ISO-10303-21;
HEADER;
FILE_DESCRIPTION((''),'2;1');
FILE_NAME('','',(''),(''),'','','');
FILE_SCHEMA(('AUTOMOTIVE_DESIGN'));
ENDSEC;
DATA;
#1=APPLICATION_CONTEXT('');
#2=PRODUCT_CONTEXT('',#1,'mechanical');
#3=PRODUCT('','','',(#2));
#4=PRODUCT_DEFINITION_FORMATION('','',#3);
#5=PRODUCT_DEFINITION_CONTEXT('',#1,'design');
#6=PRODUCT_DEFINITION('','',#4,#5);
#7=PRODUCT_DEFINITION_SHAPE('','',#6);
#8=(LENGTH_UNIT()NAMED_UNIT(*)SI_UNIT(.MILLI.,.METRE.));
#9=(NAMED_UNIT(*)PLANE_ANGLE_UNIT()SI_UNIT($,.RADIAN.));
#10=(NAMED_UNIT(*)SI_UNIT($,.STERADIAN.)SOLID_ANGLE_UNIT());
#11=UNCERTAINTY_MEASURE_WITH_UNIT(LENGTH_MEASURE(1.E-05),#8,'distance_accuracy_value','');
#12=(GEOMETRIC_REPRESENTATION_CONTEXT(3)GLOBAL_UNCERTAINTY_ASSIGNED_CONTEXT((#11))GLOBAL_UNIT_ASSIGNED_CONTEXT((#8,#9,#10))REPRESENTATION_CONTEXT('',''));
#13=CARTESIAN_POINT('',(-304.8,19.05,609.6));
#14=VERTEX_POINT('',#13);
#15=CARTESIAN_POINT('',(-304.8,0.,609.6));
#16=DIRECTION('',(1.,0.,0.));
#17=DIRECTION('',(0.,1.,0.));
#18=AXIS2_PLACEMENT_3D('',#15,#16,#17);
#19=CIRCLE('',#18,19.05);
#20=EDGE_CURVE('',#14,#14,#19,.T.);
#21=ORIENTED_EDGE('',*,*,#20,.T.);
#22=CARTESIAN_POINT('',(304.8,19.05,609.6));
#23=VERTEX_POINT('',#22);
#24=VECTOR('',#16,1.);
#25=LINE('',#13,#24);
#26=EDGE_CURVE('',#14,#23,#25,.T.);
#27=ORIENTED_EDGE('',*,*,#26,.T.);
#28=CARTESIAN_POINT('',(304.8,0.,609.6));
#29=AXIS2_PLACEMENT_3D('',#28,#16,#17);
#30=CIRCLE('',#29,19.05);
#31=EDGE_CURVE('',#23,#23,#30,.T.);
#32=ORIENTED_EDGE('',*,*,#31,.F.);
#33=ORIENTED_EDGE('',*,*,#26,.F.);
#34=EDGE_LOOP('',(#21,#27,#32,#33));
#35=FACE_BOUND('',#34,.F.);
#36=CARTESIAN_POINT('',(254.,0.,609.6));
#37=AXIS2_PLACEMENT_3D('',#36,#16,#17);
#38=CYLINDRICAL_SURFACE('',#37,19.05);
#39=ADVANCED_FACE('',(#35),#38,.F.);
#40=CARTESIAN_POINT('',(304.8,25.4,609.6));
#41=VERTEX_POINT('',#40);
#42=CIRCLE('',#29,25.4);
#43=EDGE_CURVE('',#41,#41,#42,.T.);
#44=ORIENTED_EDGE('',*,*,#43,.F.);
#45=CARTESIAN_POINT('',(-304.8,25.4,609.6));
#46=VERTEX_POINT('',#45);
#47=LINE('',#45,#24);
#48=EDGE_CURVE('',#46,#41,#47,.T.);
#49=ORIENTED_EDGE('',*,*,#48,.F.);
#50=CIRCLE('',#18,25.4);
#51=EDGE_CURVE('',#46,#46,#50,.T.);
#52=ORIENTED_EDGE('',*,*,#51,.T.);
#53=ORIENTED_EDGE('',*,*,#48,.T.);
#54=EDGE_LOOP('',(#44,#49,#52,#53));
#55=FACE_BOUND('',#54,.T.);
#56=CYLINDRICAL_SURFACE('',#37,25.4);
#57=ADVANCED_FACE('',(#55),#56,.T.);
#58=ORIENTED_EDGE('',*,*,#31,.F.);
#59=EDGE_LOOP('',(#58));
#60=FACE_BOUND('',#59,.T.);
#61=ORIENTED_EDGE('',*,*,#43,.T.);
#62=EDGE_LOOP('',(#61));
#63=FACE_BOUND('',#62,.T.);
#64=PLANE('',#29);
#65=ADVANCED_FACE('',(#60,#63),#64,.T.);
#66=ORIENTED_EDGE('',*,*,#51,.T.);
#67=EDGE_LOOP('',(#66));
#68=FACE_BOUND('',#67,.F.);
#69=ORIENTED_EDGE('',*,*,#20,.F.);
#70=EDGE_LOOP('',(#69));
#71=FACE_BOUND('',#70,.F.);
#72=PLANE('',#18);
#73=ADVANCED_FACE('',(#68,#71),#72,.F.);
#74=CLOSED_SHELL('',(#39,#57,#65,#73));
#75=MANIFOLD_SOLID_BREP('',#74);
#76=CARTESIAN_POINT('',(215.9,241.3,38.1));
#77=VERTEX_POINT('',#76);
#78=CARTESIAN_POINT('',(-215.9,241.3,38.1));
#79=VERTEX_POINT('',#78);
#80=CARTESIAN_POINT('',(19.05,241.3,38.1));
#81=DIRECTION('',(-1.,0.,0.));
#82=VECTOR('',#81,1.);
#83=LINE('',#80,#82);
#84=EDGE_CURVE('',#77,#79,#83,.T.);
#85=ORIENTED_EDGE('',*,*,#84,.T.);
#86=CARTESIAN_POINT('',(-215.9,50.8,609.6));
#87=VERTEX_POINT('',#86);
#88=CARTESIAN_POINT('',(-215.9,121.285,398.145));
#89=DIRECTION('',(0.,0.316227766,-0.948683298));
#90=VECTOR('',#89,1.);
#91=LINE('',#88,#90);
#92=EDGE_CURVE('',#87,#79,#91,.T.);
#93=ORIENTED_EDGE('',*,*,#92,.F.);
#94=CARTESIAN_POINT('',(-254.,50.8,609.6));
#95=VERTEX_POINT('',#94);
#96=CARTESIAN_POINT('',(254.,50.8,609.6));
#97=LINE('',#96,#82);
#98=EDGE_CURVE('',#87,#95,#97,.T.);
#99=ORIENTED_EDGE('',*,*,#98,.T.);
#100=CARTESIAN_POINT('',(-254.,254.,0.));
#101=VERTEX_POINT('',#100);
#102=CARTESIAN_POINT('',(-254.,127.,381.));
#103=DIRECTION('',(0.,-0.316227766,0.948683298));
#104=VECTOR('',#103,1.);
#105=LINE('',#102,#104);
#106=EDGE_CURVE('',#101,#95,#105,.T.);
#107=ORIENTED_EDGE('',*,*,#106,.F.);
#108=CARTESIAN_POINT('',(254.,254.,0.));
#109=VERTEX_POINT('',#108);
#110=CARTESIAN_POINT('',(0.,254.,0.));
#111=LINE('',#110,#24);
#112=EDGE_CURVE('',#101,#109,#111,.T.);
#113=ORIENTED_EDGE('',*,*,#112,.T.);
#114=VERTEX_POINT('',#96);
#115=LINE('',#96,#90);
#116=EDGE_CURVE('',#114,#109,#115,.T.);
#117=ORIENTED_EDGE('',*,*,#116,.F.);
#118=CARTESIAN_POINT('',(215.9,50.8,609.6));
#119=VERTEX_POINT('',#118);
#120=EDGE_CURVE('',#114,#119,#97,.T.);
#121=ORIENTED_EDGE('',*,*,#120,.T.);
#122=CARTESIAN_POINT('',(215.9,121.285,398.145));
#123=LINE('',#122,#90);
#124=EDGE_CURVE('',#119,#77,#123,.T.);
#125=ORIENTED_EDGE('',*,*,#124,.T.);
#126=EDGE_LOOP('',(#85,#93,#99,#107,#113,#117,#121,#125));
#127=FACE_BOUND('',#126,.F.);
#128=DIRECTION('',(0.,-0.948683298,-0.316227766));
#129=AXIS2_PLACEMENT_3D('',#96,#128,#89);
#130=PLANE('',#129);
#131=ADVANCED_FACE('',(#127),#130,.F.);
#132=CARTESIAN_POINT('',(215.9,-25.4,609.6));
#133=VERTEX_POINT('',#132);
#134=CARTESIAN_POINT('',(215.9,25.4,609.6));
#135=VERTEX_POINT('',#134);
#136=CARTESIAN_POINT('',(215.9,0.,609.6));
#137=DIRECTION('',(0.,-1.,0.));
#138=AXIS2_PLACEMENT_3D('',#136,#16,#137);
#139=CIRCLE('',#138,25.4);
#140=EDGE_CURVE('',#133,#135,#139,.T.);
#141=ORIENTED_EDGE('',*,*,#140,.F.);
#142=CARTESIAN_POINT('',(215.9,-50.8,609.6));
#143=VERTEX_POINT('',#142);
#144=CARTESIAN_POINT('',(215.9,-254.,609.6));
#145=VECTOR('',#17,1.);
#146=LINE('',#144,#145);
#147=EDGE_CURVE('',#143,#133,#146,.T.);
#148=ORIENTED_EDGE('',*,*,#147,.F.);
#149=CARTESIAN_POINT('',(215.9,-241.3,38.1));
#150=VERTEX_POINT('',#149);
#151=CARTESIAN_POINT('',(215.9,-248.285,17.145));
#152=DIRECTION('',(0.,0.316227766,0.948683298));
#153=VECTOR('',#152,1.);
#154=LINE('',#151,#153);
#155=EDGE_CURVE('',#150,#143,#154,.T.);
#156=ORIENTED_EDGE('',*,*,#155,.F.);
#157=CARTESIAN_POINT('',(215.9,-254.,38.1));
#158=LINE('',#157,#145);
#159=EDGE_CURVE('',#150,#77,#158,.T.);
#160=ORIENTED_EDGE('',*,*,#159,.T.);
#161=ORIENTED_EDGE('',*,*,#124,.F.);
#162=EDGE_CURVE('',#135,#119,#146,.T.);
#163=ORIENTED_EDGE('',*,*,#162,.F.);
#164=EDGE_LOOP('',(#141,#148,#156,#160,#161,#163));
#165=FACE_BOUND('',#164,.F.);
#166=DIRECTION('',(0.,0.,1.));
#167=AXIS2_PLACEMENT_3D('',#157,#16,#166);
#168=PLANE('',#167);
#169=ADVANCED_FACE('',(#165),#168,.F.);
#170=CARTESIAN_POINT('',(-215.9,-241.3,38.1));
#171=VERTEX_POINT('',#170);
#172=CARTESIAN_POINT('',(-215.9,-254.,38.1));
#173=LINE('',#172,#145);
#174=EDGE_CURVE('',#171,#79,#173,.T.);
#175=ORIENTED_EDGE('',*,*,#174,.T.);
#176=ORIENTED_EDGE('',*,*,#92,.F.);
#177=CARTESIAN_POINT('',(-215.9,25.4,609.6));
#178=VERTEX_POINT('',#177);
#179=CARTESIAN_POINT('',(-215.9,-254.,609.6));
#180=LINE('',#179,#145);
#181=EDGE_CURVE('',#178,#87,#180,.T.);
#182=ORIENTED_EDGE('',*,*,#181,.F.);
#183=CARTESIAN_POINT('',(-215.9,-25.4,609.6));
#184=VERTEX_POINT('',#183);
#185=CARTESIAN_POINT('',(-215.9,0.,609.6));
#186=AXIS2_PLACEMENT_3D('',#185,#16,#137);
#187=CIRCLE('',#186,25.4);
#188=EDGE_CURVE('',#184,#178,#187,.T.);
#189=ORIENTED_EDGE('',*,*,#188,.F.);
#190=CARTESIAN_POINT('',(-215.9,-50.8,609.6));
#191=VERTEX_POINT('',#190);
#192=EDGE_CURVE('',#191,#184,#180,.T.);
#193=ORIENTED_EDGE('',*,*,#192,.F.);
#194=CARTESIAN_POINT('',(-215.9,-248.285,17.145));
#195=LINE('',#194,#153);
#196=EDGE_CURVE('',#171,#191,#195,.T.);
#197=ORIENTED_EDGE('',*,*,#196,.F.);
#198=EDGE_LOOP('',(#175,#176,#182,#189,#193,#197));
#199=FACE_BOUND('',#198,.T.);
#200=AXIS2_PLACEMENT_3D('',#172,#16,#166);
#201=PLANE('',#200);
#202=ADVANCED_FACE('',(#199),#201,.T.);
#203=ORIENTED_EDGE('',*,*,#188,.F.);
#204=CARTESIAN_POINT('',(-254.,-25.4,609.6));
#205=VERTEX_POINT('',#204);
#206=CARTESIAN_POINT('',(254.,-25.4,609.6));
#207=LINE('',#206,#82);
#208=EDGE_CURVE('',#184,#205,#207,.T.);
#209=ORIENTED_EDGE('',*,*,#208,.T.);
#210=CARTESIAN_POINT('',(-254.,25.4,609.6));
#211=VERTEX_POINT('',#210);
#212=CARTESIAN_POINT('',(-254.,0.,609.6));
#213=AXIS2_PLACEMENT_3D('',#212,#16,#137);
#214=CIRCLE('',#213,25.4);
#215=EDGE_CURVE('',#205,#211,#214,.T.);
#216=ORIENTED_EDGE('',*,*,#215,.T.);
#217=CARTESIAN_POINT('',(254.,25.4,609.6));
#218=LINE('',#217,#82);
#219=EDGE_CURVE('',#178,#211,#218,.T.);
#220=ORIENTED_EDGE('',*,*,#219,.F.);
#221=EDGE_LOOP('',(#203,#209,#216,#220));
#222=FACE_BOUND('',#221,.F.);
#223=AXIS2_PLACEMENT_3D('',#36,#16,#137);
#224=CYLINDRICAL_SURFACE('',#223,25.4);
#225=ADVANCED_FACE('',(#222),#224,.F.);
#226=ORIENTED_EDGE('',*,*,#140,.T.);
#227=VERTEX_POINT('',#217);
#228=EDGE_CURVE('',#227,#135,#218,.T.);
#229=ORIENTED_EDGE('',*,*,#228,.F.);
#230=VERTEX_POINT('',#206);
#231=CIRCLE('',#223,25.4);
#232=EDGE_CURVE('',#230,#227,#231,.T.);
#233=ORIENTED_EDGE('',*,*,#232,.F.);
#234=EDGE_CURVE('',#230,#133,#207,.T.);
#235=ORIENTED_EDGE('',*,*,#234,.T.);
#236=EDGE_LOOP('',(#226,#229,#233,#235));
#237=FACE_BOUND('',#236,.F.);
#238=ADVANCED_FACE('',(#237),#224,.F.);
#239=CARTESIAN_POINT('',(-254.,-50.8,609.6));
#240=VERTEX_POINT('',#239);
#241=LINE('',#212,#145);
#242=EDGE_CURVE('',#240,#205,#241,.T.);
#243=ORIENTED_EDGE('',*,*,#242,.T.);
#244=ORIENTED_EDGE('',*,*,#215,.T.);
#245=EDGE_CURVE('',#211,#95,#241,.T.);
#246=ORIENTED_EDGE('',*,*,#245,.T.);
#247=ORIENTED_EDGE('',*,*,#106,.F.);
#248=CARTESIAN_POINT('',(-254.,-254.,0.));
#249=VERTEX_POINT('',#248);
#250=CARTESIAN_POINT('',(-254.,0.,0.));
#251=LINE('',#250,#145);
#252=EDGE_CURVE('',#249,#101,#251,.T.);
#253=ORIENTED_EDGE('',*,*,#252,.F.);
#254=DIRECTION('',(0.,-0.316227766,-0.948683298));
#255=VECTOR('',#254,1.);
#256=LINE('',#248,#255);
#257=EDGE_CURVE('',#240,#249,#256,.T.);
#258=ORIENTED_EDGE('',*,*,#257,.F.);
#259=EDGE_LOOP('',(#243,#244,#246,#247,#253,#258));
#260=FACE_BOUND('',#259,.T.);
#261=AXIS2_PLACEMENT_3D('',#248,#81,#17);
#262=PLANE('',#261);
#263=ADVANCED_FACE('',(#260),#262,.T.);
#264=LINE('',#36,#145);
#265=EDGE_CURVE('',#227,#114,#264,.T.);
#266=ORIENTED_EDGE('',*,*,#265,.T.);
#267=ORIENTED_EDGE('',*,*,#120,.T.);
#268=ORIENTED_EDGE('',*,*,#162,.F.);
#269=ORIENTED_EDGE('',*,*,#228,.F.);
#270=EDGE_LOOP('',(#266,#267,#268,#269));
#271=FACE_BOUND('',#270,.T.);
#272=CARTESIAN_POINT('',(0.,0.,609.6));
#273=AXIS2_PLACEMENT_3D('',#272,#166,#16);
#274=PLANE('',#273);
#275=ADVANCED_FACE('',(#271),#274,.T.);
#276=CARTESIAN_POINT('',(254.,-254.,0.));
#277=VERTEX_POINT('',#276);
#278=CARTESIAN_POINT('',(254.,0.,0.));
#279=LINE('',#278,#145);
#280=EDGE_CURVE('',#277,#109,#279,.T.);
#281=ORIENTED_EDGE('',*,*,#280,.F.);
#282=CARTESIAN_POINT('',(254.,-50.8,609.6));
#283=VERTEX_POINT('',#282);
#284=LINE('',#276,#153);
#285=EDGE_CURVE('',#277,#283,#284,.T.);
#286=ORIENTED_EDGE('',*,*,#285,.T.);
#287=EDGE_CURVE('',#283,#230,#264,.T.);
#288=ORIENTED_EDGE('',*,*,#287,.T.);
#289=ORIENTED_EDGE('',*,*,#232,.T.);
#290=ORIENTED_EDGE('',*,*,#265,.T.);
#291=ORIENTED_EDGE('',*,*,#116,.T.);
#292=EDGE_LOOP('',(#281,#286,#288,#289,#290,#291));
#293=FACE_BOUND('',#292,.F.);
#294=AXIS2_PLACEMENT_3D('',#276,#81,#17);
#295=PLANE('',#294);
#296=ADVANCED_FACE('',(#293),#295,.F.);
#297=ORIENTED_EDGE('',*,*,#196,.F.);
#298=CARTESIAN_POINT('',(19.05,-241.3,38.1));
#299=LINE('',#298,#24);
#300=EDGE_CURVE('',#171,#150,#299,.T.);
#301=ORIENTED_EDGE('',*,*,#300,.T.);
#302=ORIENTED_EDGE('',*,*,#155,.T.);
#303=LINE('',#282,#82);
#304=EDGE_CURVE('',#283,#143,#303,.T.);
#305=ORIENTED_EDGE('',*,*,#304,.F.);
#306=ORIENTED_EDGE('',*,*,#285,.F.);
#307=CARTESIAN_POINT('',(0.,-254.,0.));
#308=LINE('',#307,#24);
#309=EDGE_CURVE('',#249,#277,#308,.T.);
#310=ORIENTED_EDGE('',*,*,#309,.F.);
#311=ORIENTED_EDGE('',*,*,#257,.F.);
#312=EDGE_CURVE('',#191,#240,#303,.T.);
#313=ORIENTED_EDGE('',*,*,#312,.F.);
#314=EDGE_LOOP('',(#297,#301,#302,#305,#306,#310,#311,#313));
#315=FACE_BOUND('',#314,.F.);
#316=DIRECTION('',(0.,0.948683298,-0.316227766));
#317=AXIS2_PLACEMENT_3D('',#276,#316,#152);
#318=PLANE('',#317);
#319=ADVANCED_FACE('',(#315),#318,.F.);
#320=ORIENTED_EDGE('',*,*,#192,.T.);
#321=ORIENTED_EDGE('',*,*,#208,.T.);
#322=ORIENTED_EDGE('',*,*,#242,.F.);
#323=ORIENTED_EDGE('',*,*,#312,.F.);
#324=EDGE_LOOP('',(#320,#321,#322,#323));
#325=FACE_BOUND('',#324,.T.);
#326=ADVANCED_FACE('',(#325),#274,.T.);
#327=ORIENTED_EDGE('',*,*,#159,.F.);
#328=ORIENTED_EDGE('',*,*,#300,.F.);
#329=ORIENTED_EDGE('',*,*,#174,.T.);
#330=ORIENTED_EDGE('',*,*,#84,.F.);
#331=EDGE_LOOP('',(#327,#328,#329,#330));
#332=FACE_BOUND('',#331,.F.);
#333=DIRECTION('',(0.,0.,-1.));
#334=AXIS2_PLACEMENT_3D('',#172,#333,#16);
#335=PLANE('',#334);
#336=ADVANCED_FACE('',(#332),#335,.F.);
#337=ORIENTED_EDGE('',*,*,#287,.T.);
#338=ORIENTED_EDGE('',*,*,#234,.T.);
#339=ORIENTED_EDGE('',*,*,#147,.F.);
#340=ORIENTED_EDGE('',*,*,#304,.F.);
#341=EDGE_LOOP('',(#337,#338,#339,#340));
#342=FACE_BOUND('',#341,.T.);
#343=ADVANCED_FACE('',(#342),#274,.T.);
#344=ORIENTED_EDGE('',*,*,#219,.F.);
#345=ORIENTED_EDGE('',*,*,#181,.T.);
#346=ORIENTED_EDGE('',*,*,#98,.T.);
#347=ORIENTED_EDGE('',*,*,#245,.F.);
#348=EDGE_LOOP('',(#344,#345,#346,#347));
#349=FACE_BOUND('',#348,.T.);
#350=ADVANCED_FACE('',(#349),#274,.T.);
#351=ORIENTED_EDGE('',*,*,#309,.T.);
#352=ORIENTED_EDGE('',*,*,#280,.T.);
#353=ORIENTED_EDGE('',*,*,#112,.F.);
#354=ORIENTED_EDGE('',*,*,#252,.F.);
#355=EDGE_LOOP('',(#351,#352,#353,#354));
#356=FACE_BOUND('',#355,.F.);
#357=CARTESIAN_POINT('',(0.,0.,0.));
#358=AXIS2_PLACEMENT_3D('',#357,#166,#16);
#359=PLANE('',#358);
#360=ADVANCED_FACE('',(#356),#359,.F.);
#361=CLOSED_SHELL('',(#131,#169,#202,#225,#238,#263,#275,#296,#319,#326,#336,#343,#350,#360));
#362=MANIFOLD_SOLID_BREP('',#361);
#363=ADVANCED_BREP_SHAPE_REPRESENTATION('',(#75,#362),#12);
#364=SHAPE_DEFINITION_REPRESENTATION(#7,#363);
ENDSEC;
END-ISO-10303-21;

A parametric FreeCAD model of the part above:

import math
import FreeCAD as App
import Part
import Sketcher

V = App.Vector
Q = App.Units.Quantity


def faces_at(feature, points):
    """Names of the faces that lie closest to the given points."""
    faces = feature.Shape.Faces
    near = lambda p: min(range(len(faces)), key=lambda i: faces[i].distToShape(Part.Vertex(*p))[0])
    return sorted({f"Face{near(p) + 1}" for p in points})


def add_polygon(sketch, points):
    """Adds a closed chain of lines whose ends are joined by coincident constraints."""
    first, n = sketch.GeometryCount, len(points)
    for a, b in zip(points, points[1:] + points[:1]):
        sketch.addGeometry(Part.LineSegment(App.Vector(*a, 0), App.Vector(*b, 0)), False)
    for i in range(n):
        sketch.addConstraint(Sketcher.Constraint("Coincident", first + i, 2, first + (i + 1) % n, 1))

doc = App.newDocument("Part")
body = doc.addObject("PartDesign::Body", "Body")

# Sketch on XY plane
sketch1 = doc.addObject("Sketcher::SketchObject", "Sketch")
body.addObject(sketch1)
sketch1.AttachmentSupport = (doc.XY_Plane, [""])
sketch1.MapMode = "FlatFace"
add_polygon(sketch1, [(-254, 254), (-254, -254), (254, -254), (254, 254)])  # lines 0-3
sketch1.addConstraint([
    Sketcher.Constraint("Vertical", 0),
    Sketcher.Constraint("Horizontal", 1),
    Sketcher.Constraint("Vertical", 2),
    Sketcher.Constraint("Horizontal", 3),
    Sketcher.Constraint("Symmetric", 0, 2, 2, 2, -1, 1),
    Sketcher.Constraint("Equal", 3, 0),
    Sketcher.Constraint("DistanceX", 1, 1, 1, 2, Q("20 in")),
])
pad1 = doc.addObject("PartDesign::Pad", "Pad")
body.addObject(pad1)
pad1.Profile = sketch1
pad1.Length = Q("24 in")

# Sketch on XZ plane
sketch2 = doc.addObject("Sketcher::SketchObject", "Sketch001")
body.addObject(sketch2)
sketch2.AttachmentSupport = (doc.XZ_Plane, [""])
sketch2.MapMode = "FlatFace"
sketch2.AttachmentOffset = App.Placement(V(0, 0, 10 * 25.4), App.Rotation())
add_polygon(sketch2, [(-216, 610), (-216, 38), (216, 38), (216, 610)])  # lines 0-3
sketch2.addConstraint([
    Sketcher.Constraint("Vertical", 0),
    Sketcher.Constraint("Horizontal", 1),
    Sketcher.Constraint("Vertical", 2),
    Sketcher.Constraint("Horizontal", 3),
    Sketcher.Constraint("DistanceX", 1, 1, 1, 2, Q("17 in")),
    Sketcher.Constraint("DistanceY", 0, 2, 0, 1, Q("22.5 in")),
    Sketcher.Constraint("DistanceY", -1, 1, 2, 2, Q("24 in")),
    Sketcher.Constraint("DistanceX", 0, 2, -1, 1, Q("8.5 in")),
])
pocket1 = doc.addObject("PartDesign::Pocket", "Pocket")
body.addObject(pocket1)
pocket1.Profile = sketch2
pocket1.Type = "ThroughAll"

# Sketch on YZ plane
sketch3 = doc.addObject("Sketcher::SketchObject", "Sketch002")
body.addObject(sketch3)
sketch3.AttachmentSupport = (doc.YZ_Plane, [""])
sketch3.MapMode = "FlatFace"
sketch3.AttachmentOffset = App.Placement(V(0, 0, 10 * 25.4), App.Rotation())
add_polygon(sketch3, [(-254, 610), (-254, 0), (-51, 610)])  # lines 0-2
add_polygon(sketch3, [(254, 0), (254, 610), (51, 610)])  # lines 3-5
sketch3.addGeometry(Part.ArcOfCircle(Part.Circle(V(0, 610, 0), V(0, 0, 1), 25), math.radians(180), math.radians(360)), False)  # 6
sketch3.addGeometry(Part.LineSegment(V(25, 610, 0), V(-25, 610, 0)), False)  # 7
sketch3.addConstraint([
    Sketcher.Constraint("Coincident", 6, 1, 7, 2),
    Sketcher.Constraint("Coincident", 7, 1, 6, 2),
    Sketcher.Constraint("Vertical", 0),
    Sketcher.Constraint("Horizontal", 2),
    Sketcher.Constraint("Vertical", 3),
    Sketcher.Constraint("Horizontal", 4),
    Sketcher.Constraint("Horizontal", 7),
    Sketcher.Constraint("Symmetric", 0, 2, 5, 2, -1, 1),
    Sketcher.Constraint("Symmetric", 1, 2, 4, 2, -2),
    Sketcher.Constraint("PointOnObject", 6, 3, -2),
    Sketcher.Constraint("PointOnObject", 0, 2, -1),
    Sketcher.Constraint("Horizontal", 6, 3, 1, 2),
    Sketcher.Constraint("Horizontal", 4, 2, 6, 1),
    Sketcher.Constraint("Radius", 6, Q("1 in")),
    Sketcher.Constraint("DistanceX", 2, 2, 2, 1, Q("8 in")),
    Sketcher.Constraint("DistanceY", 0, 2, 0, 1, Q("24 in")),
    Sketcher.Constraint("DistanceX", 0, 2, -1, 1, Q("10 in")),
])
pocket2 = doc.addObject("PartDesign::Pocket", "Pocket001")
body.addObject(pocket2)
pocket2.Profile = sketch3
pocket2.Type = "ThroughAll"
body2 = doc.addObject("PartDesign::Body", "Body001")

# Sketch on YZ plane
sketch4 = doc.addObject("Sketcher::SketchObject", "Sketch003")
body2.addObject(sketch4)
sketch4.AttachmentSupport = (doc.getObject("YZ_Plane001"), [""])
sketch4.MapMode = "FlatFace"
sketch4.AttachmentOffset = App.Placement(V(0, 0, 10 * 25.4), App.Rotation())
sketch4.addGeometry(Part.Circle(V(0, 610, 0), V(0, 0, 1), 25), False)
sketch4.addConstraint([
    Sketcher.Constraint("PointOnObject", 0, 3, -2),
    Sketcher.Constraint("Diameter", 0, Q("2 in")),
    Sketcher.Constraint("DistanceY", -1, 1, 0, 3, Q("24 in")),
])
pad2 = doc.addObject("PartDesign::Pad", "Pad001")
body2.addObject(pad2)
pad2.Profile = sketch4
pad2.Type = "TwoLengths"
pad2.Length = Q("2 in")
pad2.Length2 = Q("22 in")
doc.recompute()

thickness = doc.addObject("PartDesign::Thickness", "Thickness")
body2.addObject(thickness)
thickness.Base = (pad2, faces_at(pad2, [(304.8, 0, 609.6), (-304.8, 0, 609.6)]))
thickness.Value = Q("0.25 in")
thickness.Reversed = True
thickness.Join = "Arc"

doc.recompute()
